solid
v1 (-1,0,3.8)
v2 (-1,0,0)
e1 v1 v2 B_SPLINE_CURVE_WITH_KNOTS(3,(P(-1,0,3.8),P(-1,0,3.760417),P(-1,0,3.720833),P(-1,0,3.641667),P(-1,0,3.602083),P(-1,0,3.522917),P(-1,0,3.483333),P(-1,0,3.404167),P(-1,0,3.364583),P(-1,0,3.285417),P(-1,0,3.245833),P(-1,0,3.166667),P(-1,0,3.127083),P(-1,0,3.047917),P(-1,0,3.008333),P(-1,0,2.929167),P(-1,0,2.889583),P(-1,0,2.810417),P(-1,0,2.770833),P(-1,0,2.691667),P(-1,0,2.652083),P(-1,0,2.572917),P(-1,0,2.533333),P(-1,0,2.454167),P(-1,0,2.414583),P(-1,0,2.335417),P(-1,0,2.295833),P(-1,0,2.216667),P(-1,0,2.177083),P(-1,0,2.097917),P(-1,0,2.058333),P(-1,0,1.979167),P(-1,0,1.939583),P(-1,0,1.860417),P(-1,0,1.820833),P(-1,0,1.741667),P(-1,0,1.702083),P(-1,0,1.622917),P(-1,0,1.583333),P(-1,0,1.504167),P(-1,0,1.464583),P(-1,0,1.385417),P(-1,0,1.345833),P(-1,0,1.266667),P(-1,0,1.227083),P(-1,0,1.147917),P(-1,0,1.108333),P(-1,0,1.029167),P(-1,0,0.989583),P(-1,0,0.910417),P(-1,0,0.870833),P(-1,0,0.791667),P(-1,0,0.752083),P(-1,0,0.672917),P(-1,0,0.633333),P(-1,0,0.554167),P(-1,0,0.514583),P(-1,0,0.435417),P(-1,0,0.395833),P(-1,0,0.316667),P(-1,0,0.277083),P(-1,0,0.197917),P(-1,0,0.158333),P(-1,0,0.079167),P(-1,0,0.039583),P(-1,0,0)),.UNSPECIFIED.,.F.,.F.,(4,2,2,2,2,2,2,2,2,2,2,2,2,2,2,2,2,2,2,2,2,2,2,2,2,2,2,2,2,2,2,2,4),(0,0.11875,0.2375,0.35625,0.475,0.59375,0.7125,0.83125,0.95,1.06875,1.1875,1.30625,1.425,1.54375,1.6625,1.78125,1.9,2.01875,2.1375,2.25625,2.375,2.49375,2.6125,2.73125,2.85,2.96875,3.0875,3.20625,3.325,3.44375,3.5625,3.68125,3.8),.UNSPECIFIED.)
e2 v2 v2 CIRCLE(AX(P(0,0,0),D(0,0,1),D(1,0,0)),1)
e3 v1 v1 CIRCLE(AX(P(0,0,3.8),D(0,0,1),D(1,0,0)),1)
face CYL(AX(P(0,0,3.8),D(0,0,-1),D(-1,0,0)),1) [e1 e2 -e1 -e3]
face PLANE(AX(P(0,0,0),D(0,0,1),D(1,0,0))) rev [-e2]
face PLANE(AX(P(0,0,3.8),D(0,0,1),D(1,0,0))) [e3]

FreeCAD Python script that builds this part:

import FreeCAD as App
import Part
import Sketcher
from FreeCAD import Vector
Q = App.Units.Quantity

doc = App.newDocument("Part")
body = doc.addObject("PartDesign::Body", "Body")

# Sketch on XY plane
sketch1 = body.newObject("Sketcher::SketchObject", "Sketch")
sketch1.AttachmentSupport = (doc.getObject("XY_Plane"), [""])
sketch1.MapMode = "FlatFace"
sketch1.addGeometry(Part.Circle(Vector(0, 0, 0), Vector(0, 0, 1), 1), False)
sketch1.addConstraint(Sketcher.Constraint("Coincident", 0, 3, -1, 1))
sketch1.addConstraint(Sketcher.Constraint("Diameter", 0, Q("2 mm")))
pad1 = body.newObject("PartDesign::Pad", "Pad")
pad1.Profile = sketch1
pad1.Length = 3.8

doc.recompute()
